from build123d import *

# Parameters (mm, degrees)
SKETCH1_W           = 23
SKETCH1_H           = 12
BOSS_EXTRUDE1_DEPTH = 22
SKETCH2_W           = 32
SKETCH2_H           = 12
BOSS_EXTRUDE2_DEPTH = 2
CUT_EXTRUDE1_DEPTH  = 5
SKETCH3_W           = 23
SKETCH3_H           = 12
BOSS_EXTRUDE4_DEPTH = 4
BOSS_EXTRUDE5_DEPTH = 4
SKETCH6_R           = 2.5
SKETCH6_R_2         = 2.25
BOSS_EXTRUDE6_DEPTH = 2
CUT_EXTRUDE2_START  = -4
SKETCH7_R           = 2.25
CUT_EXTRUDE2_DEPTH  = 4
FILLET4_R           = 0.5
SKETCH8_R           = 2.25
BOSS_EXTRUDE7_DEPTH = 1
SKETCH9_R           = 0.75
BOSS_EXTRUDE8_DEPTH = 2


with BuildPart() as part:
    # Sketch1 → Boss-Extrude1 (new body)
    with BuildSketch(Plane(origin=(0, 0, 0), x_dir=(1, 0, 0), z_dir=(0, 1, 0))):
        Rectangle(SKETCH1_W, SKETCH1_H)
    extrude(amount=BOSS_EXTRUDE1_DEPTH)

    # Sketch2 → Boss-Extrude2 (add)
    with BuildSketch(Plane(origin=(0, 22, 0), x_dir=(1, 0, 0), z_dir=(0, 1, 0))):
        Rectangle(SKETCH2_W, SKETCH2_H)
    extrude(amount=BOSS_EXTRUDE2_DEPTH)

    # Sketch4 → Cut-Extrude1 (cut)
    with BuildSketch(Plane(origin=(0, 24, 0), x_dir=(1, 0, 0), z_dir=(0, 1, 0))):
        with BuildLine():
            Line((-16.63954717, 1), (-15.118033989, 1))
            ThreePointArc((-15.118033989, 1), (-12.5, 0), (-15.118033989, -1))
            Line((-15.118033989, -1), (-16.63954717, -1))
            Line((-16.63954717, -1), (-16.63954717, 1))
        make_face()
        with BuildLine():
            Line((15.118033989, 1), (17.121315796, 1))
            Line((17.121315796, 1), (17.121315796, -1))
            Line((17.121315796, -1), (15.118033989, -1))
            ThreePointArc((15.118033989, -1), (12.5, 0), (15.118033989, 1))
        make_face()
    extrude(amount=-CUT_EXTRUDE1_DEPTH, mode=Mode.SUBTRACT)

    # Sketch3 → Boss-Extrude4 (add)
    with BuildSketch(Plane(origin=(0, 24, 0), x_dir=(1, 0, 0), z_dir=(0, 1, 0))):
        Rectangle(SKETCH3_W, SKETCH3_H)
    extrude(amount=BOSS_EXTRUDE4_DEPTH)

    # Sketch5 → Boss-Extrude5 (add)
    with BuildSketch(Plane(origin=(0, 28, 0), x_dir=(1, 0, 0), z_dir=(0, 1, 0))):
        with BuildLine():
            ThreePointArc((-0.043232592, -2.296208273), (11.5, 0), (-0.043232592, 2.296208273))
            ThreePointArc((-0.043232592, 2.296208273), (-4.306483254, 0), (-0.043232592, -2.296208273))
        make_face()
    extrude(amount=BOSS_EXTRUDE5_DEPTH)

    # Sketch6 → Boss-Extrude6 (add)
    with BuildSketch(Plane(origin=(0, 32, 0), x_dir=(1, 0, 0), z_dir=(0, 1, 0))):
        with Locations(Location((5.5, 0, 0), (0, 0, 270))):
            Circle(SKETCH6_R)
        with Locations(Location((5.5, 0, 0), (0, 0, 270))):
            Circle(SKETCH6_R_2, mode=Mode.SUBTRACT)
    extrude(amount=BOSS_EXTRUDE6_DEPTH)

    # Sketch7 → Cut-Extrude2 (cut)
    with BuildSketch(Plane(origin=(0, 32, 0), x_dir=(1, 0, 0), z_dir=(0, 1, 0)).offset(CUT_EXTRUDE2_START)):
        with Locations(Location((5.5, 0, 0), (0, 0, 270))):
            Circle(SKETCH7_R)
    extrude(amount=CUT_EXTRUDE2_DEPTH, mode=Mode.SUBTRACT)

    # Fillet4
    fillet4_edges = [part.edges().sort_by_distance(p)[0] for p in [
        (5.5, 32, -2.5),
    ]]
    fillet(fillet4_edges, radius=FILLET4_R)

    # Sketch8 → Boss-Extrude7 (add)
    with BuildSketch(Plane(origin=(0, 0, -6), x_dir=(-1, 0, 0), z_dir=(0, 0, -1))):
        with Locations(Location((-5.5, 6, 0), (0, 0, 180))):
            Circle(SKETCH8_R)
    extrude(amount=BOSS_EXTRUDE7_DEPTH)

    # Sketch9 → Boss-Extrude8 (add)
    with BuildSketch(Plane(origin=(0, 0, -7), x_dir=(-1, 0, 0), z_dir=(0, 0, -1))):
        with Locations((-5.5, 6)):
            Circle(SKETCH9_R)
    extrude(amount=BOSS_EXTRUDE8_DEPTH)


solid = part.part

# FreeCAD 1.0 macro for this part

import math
import FreeCAD as App
import Part
import Sketcher

V = App.Vector


def edges_at(feature, points):
    """Names of the edges that pass closest to the given points."""
    edges = feature.Shape.Edges
    near = lambda p: min(range(len(edges)), key=lambda i: edges[i].distToShape(Part.Vertex(*p))[0])
    return sorted({f"Edge{near(p) + 1}" for p in points})

doc = App.newDocument("Part")
body = doc.addObject("PartDesign::Body", "Body")

sketch1 = doc.addObject("Sketcher::SketchObject", "Sketch")
body.addObject(sketch1)
sketch1.AttachmentSupport = (doc.XZ_Plane, [""])
sketch1.MapMode = "FlatFace"
sketch1.addGeometry([
    Part.LineSegment(V(-11.5, -6, 0), V(-11.5, 6, 0)),
    Part.LineSegment(V(-11.5, 6, 0), V(11.5, 6, 0)),
    Part.LineSegment(V(11.5, 6, 0), V(11.5, -6, 0)),
    Part.LineSegment(V(11.5, -6, 0), V(-11.5, -6, 0)),
], False)
sketch1.addConstraint([
    Sketcher.Constraint("Coincident", 0, 2, 1, 1),
    Sketcher.Constraint("Coincident", 1, 2, 2, 1),
    Sketcher.Constraint("Coincident", 2, 2, 3, 1),
    Sketcher.Constraint("Coincident", 3, 2, 0, 1),
    Sketcher.Constraint("Vertical", 0),
    Sketcher.Constraint("Horizontal", 1),
    Sketcher.Constraint("Vertical", 2),
    Sketcher.Constraint("Horizontal", 3),
    Sketcher.Constraint("Symmetric", 0, 2, 2, 2, -1, 1),
    Sketcher.Constraint("DistanceX", 1, 1, 1, 2, 23.0),
    Sketcher.Constraint("DistanceY", 0, 1, 0, 2, 12.0),
])
pad1 = doc.addObject("PartDesign::Pad", "Pad")
body.addObject(pad1)
pad1.Profile = sketch1
pad1.Length = 22
pad1.Reversed = True

sketch2 = doc.addObject("Sketcher::SketchObject", "Sketch001")
body.addObject(sketch2)
sketch2.AttachmentSupport = (doc.XZ_Plane, [""])
sketch2.MapMode = "FlatFace"
sketch2.AttachmentOffset = App.Placement(V(0, 0, -22), App.Rotation())
sketch2.addGeometry([
    Part.LineSegment(V(-16, -6, 0), V(-16, 6, 0)),
    Part.LineSegment(V(-16, 6, 0), V(16, 6, 0)),
    Part.LineSegment(V(16, 6, 0), V(16, -6, 0)),
    Part.LineSegment(V(16, -6, 0), V(-16, -6, 0)),
], False)
sketch2.addConstraint([
    Sketcher.Constraint("Coincident", 0, 2, 1, 1),
    Sketcher.Constraint("Coincident", 1, 2, 2, 1),
    Sketcher.Constraint("Coincident", 2, 2, 3, 1),
    Sketcher.Constraint("Coincident", 3, 2, 0, 1),
    Sketcher.Constraint("Vertical", 0),
    Sketcher.Constraint("Horizontal", 1),
    Sketcher.Constraint("Vertical", 2),
    Sketcher.Constraint("Horizontal", 3),
    Sketcher.Constraint("Symmetric", 0, 2, 2, 2, -1, 1),
    Sketcher.Constraint("DistanceX", 1, 1, 1, 2, 32.0),
    Sketcher.Constraint("DistanceY", 0, 1, 0, 2, 12.0),
])
pad2 = doc.addObject("PartDesign::Pad", "Pad001")
body.addObject(pad2)
pad2.Profile = sketch2
pad2.Length = 2
pad2.Reversed = True

sketch3 = doc.addObject("Sketcher::SketchObject", "Sketch002")
body.addObject(sketch3)
sketch3.AttachmentSupport = (doc.XZ_Plane, [""])
sketch3.MapMode = "FlatFace"
sketch3.AttachmentOffset = App.Placement(V(0, 0, -24), App.Rotation())
sketch3.addGeometry([
    Part.LineSegment(V(-15.118034, -1, 0), V(-16.639547, -1, 0)),
    Part.LineSegment(V(-16.639547, -1, 0), V(-16.639547, 1, 0)),
    Part.LineSegment(V(-16.639547, 1, 0), V(-15.118034, 1, 0)),
    Part.ArcOfCircle(Part.Circle(V(-14, 0, 0), V(0, 0, 1), 1.5), math.radians(-138.189685), math.radians(138.189685)),
    Part.LineSegment(V(17.121316, -1, 0), V(15.118034, -1, 0)),
    Part.ArcOfCircle(Part.Circle(V(14, 0, 0), V(0, 0, 1), 1.5), math.radians(41.810315), math.radians(318.189685)),
    Part.LineSegment(V(15.118034, 1, 0), V(17.121316, 1, 0)),
    Part.LineSegment(V(17.121316, 1, 0), V(17.121316, -1, 0)),
], False)
sketch3.addConstraint([
    Sketcher.Constraint("Coincident", 0, 2, 1, 1),
    Sketcher.Constraint("Coincident", 1, 2, 2, 1),
    Sketcher.Constraint("Coincident", 2, 2, 3, 2),
    Sketcher.Constraint("Coincident", 3, 1, 0, 1),
    Sketcher.Constraint("Coincident", 4, 2, 5, 2),
    Sketcher.Constraint("Coincident", 5, 1, 6, 1),
    Sketcher.Constraint("Coincident", 6, 2, 7, 1),
    Sketcher.Constraint("Coincident", 7, 2, 4, 1),
    Sketcher.Constraint("Horizontal", 0),
    Sketcher.Constraint("Vertical", 1),
    Sketcher.Constraint("Horizontal", 2),
    Sketcher.Constraint("Horizontal", 4),
    Sketcher.Constraint("Horizontal", 6),
    Sketcher.Constraint("Vertical", 7),
    Sketcher.Constraint("Equal", 3, 5),
    Sketcher.Constraint("Symmetric", 3, 3, 5, 3, -1, 1),
    Sketcher.Constraint("Symmetric", 3, 1, 4, 2, -2),
    Sketcher.Constraint("Horizontal", 2, 2, 5, 1),
    Sketcher.Constraint("Vertical", 2, 2, 3, 1),
    Sketcher.Constraint("Radius", 3, 1.5),
    Sketcher.Constraint("DistanceY", 1, 1, 1, 2, 2.0),
    Sketcher.Constraint("DistanceX", 3, 3, -1, 1, 14.0),
    Sketcher.Constraint("DistanceX", 4, 2, 4, 1, 2.003282),
    Sketcher.Constraint("DistanceX", 0, 2, 0, 1, 1.521513),
])
pocket1 = doc.addObject("PartDesign::Pocket", "Pocket")
body.addObject(pocket1)
pocket1.Profile = sketch3
pocket1.Length = 5
pocket1.Reversed = True

sketch4 = doc.addObject("Sketcher::SketchObject", "Sketch003")
body.addObject(sketch4)
sketch4.AttachmentSupport = (doc.XZ_Plane, [""])
sketch4.MapMode = "FlatFace"
sketch4.AttachmentOffset = App.Placement(V(0, 0, -24), App.Rotation())
sketch4.addGeometry([
    Part.LineSegment(V(-11.5, -6, 0), V(-11.5, 6, 0)),
    Part.LineSegment(V(-11.5, 6, 0), V(11.5, 6, 0)),
    Part.LineSegment(V(11.5, 6, 0), V(11.5, -6, 0)),
    Part.LineSegment(V(11.5, -6, 0), V(-11.5, -6, 0)),
], False)
sketch4.addConstraint([
    Sketcher.Constraint("Coincident", 0, 2, 1, 1),
    Sketcher.Constraint("Coincident", 1, 2, 2, 1),
    Sketcher.Constraint("Coincident", 2, 2, 3, 1),
    Sketcher.Constraint("Coincident", 3, 2, 0, 1),
    Sketcher.Constraint("Vertical", 0),
    Sketcher.Constraint("Horizontal", 1),
    Sketcher.Constraint("Vertical", 2),
    Sketcher.Constraint("Horizontal", 3),
    Sketcher.Constraint("Symmetric", 0, 2, 2, 2, -1, 1),
    Sketcher.Constraint("DistanceX", 1, 1, 1, 2, 23.0),
    Sketcher.Constraint("DistanceY", 0, 1, 0, 2, 12.0),
])
pad3 = doc.addObject("PartDesign::Pad", "Pad002")
body.addObject(pad3)
pad3.Profile = sketch4
pad3.Length = 4
pad3.Reversed = True

sketch5 = doc.addObject("Sketcher::SketchObject", "Sketch004")
body.addObject(sketch5)
sketch5.AttachmentSupport = (doc.XZ_Plane, [""])
sketch5.MapMode = "FlatFace"
sketch5.AttachmentOffset = App.Placement(V(0, 0, -28), App.Rotation())
sketch5.addGeometry([
    Part.ArcOfCircle(Part.Circle(V(5.5, 0, 0), V(0, 0, 1), 6), math.radians(-157.498887), math.radians(157.498887)),
    Part.ArcOfCircle(Part.Circle(V(-1.556483, 0, 0), V(0, 0, 1), 2.75), math.radians(56.614258), math.radians(303.385742)),
], False)
sketch5.addConstraint([
    Sketcher.Constraint("Coincident", 0, 1, 1, 2),
    Sketcher.Constraint("Coincident", 1, 1, 0, 2),
    Sketcher.Constraint("Symmetric", 0, 1, 1, 1, -1),
    Sketcher.Constraint("Radius", 0, 6.0),
    Sketcher.Constraint("Radius", 1, 2.75),
    Sketcher.Constraint("DistanceX", -1, 1, 0, 3, 5.5),
    Sketcher.Constraint("DistanceY", 0, 1, -1, 1, 2.296208),
])
pad4 = doc.addObject("PartDesign::Pad", "Pad003")
body.addObject(pad4)
pad4.Profile = sketch5
pad4.Length = 4
pad4.Reversed = True

sketch6 = doc.addObject("Sketcher::SketchObject", "Sketch005")
body.addObject(sketch6)
sketch6.AttachmentSupport = (doc.XZ_Plane, [""])
sketch6.MapMode = "FlatFace"
sketch6.AttachmentOffset = App.Placement(V(0, 0, -32), App.Rotation())
sketch6.addGeometry([
    Part.Circle(V(5.5, 0, 0), V(0, 0, 1), 2.5),
    Part.Circle(V(5.5, 0, 0), V(0, 0, 1), 2.25),
], False)
sketch6.addConstraint([
    Sketcher.Constraint("Coincident", 1, 3, 0, 3),
    Sketcher.Constraint("PointOnObject", 0, 3, -1),
    Sketcher.Constraint("Diameter", 0, 5.0),
    Sketcher.Constraint("Diameter", 1, 4.5),
    Sketcher.Constraint("DistanceX", -1, 1, 0, 3, 5.5),
])
pad5 = doc.addObject("PartDesign::Pad", "Pad004")
body.addObject(pad5)
pad5.Profile = sketch6
pad5.Length = 2
pad5.Reversed = True

sketch7 = doc.addObject("Sketcher::SketchObject", "Sketch006")
body.addObject(sketch7)
sketch7.AttachmentSupport = (doc.XZ_Plane, [""])
sketch7.MapMode = "FlatFace"
sketch7.AttachmentOffset = App.Placement(V(0, 0, -28), App.Rotation())
sketch7.addGeometry(Part.Circle(V(5.5, 0, 0), V(0, 0, 1), 2.25), False)
sketch7.addConstraint([
    Sketcher.Constraint("PointOnObject", 0, 3, -1),
    Sketcher.Constraint("Diameter", 0, 4.5),
    Sketcher.Constraint("DistanceX", -1, 1, 0, 3, 5.5),
])
pocket2 = doc.addObject("PartDesign::Pocket", "Pocket001")
body.addObject(pocket2)
pocket2.Profile = sketch7
pocket2.Length = 4
doc.recompute()

fillet = doc.addObject("PartDesign::Fillet", "Fillet")
body.addObject(fillet)
fillet.Base = (pocket2, edges_at(pocket2, [(5.5, 32, -2.5)]))
fillet.Radius = 0.5

sketch8 = doc.addObject("Sketcher::SketchObject", "Sketch007")
body.addObject(sketch8)
sketch8.AttachmentSupport = (doc.XY_Plane, [""])
sketch8.MapMode = "FlatFace"
sketch8.AttachmentOffset = App.Placement(V(0, 0, -6), App.Rotation())
sketch8.addGeometry(Part.Circle(V(5.5, 6, 0), V(0, 0, 1), 2.25), False)
sketch8.addConstraint([
    Sketcher.Constraint("Diameter", 0, 4.5),
    Sketcher.Constraint("DistanceY", -1, 1, 0, 3, 6.0),
    Sketcher.Constraint("DistanceX", -1, 1, 0, 3, 5.5),
])
pad6 = doc.addObject("PartDesign::Pad", "Pad005")
body.addObject(pad6)
pad6.Profile = sketch8
pad6.Length = 1
pad6.Reversed = True

sketch9 = doc.addObject("Sketcher::SketchObject", "Sketch008")
body.addObject(sketch9)
sketch9.AttachmentSupport = (doc.XY_Plane, [""])
sketch9.MapMode = "FlatFace"
sketch9.AttachmentOffset = App.Placement(V(0, 0, -7), App.Rotation())
sketch9.addGeometry(Part.Circle(V(5.5, 6, 0), V(0, 0, 1), 0.75), False)
sketch9.addConstraint([
    Sketcher.Constraint("Diameter", 0, 1.5),
    Sketcher.Constraint("DistanceY", -1, 1, 0, 3, 6.0),
    Sketcher.Constraint("DistanceX", -1, 1, 0, 3, 5.5),
])
pad7 = doc.addObject("PartDesign::Pad", "Pad006")
body.addObject(pad7)
pad7.Profile = sketch9
pad7.Length = 2
pad7.Reversed = True

doc.recompute()
